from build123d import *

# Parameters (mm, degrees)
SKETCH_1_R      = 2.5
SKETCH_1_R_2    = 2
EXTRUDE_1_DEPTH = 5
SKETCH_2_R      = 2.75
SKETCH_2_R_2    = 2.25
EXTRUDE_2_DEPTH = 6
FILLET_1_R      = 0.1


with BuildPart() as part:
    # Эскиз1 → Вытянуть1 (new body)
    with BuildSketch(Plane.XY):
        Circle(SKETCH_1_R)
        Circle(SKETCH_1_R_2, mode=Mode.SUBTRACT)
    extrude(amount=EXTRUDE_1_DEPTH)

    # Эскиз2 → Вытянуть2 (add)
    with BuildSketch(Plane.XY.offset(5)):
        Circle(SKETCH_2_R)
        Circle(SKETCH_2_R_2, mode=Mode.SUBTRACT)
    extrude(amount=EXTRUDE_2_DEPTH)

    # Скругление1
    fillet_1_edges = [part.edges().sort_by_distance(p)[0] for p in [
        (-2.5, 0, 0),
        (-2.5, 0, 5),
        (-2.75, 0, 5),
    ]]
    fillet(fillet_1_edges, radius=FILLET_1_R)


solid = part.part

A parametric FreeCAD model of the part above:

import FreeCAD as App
import Part
import Sketcher


def edges_at(feature, points):
    """Names of the edges that pass closest to the given points."""
    edges = feature.Shape.Edges
    near = lambda p: min(range(len(edges)), key=lambda i: edges[i].distToShape(Part.Vertex(*p))[0])
    return sorted({f"Edge{near(p) + 1}" for p in points})

doc = App.newDocument("Part")
body = doc.addObject("PartDesign::Body", "Body")

sketch1 = doc.addObject("Sketcher::SketchObject", "Sketch")
body.addObject(sketch1)
sketch1.AttachmentSupport = (doc.XY_Plane, [""])
sketch1.MapMode = "FlatFace"
sketch1.addGeometry(Part.Circle(App.Vector(0, 0, 0), App.Vector(0, 0, 1), 2.5), False)
sketch1.addGeometry(Part.Circle(App.Vector(0, 0, 0), App.Vector(0, 0, 1), 2), False)
sketch1.addConstraint(Sketcher.Constraint("Coincident", 0, 3, -1, 1))
sketch1.addConstraint(Sketcher.Constraint("Coincident", 1, 3, -1, 1))
sketch1.addConstraint(Sketcher.Constraint("Diameter", 0, 5.0))
sketch1.addConstraint(Sketcher.Constraint("Diameter", 1, 4.0))
pad1 = doc.addObject("PartDesign::Pad", "Pad")
body.addObject(pad1)
pad1.Profile = sketch1
pad1.Length = 5

sketch2 = doc.addObject("Sketcher::SketchObject", "Sketch001")
body.addObject(sketch2)
sketch2.AttachmentSupport = (doc.XY_Plane, [""])
sketch2.MapMode = "FlatFace"
sketch2.AttachmentOffset = App.Placement(App.Vector(0, 0, 5), App.Rotation())
sketch2.addGeometry(Part.Circle(App.Vector(0, 0, 0), App.Vector(0, 0, 1), 2.8), False)
sketch2.addGeometry(Part.Circle(App.Vector(0, 0, 0), App.Vector(0, 0, 1), 2.2), False)
sketch2.addConstraint(Sketcher.Constraint("Coincident", 0, 3, -1, 1))
sketch2.addConstraint(Sketcher.Constraint("Coincident", 1, 3, -1, 1))
sketch2.addConstraint(Sketcher.Constraint("Diameter", 0, 5.5))
sketch2.addConstraint(Sketcher.Constraint("Diameter", 1, 4.5))
pad2 = doc.addObject("PartDesign::Pad", "Pad001")
body.addObject(pad2)
pad2.Profile = sketch2
pad2.Length = 6
doc.recompute()

fillet = doc.addObject("PartDesign::Fillet", "Fillet")
body.addObject(fillet)
fillet.Base = (pad2, edges_at(pad2, [(-2.5, 0, 0), (-2.5, 0, 5), (-2.75, 0, 5)]))
fillet.Radius = 0.1

doc.recompute()
